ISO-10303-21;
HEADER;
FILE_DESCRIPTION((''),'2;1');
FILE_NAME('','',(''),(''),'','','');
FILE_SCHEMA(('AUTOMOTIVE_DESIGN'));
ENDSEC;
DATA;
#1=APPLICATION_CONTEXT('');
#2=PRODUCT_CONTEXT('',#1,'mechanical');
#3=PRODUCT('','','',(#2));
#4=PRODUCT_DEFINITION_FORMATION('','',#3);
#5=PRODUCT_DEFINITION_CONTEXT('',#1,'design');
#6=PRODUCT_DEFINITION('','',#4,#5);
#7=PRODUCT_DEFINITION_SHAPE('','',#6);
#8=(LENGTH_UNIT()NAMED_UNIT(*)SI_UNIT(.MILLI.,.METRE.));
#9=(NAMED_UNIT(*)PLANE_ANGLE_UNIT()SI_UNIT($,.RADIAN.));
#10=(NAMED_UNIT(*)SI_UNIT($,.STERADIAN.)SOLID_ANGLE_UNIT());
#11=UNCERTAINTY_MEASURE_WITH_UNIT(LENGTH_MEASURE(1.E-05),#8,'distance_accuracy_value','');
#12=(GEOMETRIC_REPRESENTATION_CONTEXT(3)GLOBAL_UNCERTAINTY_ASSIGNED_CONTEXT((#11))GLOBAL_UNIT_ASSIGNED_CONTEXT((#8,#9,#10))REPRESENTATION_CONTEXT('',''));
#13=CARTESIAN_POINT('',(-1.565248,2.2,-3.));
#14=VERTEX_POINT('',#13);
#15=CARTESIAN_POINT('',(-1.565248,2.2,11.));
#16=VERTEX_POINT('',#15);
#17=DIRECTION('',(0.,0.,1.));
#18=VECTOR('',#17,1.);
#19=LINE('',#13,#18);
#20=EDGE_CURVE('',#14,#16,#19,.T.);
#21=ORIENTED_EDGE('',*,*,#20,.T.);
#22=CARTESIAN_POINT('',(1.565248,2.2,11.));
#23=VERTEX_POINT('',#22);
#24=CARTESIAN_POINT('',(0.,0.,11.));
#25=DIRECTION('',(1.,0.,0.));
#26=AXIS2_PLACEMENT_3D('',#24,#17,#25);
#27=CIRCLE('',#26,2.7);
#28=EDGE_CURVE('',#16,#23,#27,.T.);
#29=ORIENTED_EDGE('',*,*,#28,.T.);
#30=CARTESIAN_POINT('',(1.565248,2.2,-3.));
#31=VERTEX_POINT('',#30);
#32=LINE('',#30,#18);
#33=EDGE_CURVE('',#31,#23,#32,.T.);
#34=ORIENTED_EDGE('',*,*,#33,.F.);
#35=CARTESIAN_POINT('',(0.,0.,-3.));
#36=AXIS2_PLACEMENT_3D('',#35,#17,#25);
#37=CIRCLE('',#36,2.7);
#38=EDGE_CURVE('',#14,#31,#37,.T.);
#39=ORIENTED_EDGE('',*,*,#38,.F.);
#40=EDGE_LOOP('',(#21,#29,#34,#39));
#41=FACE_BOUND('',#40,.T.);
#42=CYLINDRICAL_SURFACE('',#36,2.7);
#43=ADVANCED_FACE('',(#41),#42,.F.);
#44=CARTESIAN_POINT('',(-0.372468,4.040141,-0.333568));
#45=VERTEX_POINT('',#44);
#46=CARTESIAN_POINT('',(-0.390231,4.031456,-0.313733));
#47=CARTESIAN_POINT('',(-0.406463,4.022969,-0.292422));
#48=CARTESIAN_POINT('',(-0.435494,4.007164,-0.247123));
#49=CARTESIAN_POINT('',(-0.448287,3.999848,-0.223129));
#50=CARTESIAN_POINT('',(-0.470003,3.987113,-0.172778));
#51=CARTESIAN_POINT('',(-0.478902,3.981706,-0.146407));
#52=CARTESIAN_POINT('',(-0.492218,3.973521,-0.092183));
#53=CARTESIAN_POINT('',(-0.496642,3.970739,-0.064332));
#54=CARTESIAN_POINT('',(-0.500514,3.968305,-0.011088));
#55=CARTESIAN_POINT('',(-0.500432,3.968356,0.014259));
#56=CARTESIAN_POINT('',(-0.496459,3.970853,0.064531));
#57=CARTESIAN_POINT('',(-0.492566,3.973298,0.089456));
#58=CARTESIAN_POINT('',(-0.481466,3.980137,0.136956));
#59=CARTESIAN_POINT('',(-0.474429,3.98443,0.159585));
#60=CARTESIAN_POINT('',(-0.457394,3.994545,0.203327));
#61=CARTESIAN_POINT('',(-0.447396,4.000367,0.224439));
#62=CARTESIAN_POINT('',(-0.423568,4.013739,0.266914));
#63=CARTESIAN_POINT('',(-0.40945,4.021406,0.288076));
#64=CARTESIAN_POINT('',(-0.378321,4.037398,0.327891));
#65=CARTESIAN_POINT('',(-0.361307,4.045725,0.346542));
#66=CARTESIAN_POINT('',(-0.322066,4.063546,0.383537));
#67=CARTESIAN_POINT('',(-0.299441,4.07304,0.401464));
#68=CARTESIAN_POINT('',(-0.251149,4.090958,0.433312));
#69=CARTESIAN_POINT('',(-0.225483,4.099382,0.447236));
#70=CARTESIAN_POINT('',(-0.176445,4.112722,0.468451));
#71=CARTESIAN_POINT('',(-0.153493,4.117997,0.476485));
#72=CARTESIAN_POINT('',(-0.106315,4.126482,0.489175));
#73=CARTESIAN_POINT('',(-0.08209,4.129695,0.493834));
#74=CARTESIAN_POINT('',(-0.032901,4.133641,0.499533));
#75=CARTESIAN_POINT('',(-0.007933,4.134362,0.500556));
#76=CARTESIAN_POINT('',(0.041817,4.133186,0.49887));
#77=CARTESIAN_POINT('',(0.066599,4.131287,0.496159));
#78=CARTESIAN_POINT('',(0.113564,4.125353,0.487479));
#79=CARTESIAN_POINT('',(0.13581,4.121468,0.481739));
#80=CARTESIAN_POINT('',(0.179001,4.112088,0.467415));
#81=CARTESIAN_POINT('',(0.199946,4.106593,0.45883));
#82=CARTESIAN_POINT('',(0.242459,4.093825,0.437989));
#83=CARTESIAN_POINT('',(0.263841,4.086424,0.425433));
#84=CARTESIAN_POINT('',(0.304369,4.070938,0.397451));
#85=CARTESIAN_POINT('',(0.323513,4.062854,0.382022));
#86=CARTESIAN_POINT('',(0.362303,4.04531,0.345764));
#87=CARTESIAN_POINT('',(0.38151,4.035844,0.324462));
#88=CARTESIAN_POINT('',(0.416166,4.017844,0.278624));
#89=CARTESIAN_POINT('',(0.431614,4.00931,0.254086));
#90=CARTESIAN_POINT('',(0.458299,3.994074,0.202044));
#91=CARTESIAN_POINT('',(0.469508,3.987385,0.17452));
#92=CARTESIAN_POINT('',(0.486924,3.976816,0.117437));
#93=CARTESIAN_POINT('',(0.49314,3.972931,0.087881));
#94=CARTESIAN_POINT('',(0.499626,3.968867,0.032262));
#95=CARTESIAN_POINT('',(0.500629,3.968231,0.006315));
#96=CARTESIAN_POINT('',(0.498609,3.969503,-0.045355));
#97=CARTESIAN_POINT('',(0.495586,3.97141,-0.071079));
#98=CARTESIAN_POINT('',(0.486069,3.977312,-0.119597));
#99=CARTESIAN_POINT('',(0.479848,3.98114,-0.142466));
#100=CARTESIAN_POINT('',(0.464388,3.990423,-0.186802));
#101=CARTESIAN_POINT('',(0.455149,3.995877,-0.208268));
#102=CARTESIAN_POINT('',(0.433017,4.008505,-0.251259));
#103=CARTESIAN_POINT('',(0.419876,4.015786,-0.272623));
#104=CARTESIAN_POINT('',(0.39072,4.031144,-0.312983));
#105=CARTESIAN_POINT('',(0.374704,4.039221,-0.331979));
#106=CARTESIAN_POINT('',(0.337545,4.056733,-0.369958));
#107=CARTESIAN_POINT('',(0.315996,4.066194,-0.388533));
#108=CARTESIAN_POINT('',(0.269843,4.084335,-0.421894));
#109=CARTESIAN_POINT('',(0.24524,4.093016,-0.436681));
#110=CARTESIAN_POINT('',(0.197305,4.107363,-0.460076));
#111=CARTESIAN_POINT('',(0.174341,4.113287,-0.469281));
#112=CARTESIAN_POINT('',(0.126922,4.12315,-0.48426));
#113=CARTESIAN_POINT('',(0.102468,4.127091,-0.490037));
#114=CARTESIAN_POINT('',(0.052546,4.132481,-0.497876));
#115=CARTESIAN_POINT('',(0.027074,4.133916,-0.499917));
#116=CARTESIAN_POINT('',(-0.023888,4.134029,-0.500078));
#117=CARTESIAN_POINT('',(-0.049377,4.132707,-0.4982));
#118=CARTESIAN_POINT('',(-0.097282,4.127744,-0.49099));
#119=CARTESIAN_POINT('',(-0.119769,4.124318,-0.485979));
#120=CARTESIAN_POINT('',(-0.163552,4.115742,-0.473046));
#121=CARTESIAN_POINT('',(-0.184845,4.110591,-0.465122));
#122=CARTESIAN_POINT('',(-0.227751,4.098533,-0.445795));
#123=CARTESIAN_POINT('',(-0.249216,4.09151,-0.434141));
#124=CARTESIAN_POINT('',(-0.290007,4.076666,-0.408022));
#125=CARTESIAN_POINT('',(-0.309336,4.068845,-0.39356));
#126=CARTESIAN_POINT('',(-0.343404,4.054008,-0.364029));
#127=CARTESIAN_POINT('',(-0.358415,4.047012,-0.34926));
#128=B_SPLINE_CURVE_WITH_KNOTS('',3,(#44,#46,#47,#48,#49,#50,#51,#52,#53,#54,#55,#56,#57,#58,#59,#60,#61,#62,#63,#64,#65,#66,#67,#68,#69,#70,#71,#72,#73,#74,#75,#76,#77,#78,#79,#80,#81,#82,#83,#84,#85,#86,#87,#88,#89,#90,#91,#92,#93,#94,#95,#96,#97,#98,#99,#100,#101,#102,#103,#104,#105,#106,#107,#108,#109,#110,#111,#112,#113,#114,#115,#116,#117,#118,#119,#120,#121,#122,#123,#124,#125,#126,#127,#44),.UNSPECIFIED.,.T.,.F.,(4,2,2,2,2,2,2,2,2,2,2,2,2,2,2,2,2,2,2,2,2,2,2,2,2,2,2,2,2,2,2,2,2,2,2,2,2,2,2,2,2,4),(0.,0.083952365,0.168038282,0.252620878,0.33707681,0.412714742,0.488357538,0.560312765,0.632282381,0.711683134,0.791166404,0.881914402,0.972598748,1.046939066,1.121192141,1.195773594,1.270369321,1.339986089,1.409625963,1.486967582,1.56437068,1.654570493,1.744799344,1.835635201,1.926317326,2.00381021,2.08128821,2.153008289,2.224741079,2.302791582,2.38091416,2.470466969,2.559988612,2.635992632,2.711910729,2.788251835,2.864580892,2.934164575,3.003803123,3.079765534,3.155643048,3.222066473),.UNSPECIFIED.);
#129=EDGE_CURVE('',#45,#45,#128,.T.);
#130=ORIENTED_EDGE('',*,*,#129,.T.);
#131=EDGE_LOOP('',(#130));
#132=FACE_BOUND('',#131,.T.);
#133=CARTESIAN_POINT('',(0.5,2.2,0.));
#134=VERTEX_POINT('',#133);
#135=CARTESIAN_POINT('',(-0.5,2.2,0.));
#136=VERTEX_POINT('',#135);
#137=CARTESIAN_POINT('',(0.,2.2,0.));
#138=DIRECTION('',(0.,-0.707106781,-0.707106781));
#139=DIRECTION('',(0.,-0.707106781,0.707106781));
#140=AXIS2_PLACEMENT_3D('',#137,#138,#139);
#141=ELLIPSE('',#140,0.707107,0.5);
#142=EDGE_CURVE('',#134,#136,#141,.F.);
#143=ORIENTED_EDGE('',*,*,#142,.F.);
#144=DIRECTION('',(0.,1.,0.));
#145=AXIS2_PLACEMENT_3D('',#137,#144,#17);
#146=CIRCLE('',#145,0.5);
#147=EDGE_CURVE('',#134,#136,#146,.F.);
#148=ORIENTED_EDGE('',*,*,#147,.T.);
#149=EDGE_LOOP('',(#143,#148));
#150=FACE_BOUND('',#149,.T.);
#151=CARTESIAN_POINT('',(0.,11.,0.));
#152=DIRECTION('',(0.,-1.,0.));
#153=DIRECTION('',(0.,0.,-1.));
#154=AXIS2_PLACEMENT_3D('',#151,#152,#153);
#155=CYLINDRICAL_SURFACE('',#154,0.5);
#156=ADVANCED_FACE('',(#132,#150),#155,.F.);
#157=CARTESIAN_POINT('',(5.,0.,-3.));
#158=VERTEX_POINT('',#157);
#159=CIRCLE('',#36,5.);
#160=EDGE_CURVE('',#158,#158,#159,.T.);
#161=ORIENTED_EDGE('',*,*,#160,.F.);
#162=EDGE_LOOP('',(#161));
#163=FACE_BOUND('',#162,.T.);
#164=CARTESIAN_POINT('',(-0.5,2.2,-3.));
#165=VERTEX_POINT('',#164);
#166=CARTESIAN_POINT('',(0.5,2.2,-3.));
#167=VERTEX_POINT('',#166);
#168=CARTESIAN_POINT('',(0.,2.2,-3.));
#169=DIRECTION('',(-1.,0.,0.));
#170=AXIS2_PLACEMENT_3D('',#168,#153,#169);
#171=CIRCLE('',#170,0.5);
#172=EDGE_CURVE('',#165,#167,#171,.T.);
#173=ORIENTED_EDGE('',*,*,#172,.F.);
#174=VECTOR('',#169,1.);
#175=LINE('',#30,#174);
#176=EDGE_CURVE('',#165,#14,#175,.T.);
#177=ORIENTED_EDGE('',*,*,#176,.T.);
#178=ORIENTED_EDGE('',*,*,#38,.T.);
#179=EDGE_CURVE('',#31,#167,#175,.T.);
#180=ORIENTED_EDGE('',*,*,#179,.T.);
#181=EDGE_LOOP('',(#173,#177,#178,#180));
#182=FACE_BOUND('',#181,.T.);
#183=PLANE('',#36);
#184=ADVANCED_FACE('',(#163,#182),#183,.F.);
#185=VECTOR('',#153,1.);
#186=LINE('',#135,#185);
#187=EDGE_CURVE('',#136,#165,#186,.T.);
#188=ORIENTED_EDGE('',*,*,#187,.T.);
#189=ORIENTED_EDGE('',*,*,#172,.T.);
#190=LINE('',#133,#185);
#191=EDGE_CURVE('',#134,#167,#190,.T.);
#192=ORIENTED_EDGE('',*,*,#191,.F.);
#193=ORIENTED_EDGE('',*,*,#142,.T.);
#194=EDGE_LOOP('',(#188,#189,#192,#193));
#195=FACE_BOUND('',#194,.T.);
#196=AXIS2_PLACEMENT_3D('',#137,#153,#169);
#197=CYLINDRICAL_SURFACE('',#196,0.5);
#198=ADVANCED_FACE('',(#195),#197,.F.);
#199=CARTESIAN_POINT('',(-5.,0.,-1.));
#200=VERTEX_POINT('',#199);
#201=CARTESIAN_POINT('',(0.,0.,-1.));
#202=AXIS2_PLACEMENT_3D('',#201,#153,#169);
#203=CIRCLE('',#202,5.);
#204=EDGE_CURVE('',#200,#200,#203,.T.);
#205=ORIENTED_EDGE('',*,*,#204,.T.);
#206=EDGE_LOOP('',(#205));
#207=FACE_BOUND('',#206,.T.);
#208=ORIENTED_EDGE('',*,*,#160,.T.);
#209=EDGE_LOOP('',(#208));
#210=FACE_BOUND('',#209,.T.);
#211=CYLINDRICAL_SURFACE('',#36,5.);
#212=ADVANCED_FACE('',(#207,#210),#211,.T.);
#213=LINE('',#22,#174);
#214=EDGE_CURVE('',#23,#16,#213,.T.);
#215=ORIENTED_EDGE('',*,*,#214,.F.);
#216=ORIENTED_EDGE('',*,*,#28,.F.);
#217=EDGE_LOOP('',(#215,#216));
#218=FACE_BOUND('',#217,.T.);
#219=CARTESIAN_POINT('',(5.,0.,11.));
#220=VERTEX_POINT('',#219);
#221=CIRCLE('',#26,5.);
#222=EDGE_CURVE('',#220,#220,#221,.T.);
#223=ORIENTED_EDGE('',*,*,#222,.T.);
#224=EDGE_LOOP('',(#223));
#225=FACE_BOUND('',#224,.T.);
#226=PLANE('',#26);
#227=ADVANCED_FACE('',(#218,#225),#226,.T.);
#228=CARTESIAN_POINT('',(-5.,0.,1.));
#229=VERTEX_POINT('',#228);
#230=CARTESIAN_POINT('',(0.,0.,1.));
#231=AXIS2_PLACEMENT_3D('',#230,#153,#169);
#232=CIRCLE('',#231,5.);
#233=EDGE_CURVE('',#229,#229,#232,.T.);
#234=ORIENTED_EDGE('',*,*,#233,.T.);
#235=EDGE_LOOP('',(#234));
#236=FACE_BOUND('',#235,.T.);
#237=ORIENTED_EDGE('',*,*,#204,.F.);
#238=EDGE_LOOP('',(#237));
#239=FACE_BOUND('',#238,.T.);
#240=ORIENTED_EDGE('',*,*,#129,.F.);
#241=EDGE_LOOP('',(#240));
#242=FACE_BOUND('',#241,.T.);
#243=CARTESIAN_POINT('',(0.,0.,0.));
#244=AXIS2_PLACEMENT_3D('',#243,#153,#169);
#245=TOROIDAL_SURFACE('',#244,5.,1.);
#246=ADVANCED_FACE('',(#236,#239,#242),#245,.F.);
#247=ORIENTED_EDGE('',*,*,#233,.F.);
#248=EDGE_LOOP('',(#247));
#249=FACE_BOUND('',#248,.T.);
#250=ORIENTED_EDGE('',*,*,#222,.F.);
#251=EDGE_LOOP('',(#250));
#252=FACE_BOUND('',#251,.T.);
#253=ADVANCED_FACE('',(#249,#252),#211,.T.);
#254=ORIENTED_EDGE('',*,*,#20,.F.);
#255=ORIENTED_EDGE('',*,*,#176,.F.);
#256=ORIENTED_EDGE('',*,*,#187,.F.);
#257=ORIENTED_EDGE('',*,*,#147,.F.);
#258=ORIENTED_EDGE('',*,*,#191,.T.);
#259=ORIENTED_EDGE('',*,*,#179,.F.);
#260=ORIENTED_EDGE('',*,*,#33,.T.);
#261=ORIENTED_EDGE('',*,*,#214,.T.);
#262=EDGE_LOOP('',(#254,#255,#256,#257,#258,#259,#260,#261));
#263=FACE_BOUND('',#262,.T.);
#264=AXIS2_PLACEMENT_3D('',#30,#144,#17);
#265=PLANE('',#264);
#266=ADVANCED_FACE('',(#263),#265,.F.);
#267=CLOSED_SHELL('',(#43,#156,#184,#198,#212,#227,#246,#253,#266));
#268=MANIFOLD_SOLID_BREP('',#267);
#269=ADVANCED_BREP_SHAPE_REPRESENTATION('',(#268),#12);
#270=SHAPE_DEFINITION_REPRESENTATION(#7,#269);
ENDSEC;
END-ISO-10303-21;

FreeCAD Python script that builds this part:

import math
import FreeCAD as App
import Part
import Sketcher

doc = App.newDocument("Part")
body = doc.addObject("PartDesign::Body", "Body")

# Sketch on XY plane
sketch1 = body.newObject("Sketcher::SketchObject", "Sketch")
sketch1.AttachmentSupport = (doc.getObject("XY_Plane"), [""])
sketch1.MapMode = "FlatFace"
sketch1.addGeometry([
    Part.Circle(App.Vector(0, 0, 0), App.Vector(0, 0, 1), 5),
    Part.LineSegment(App.Vector(-1.6, 2.2, 0), App.Vector(1.6, 2.2, 0)),
    Part.ArcOfCircle(Part.Circle(App.Vector(0, 0, 0), App.Vector(0, 0, 1), 2.7), math.radians(125), math.radians(415)),
], False)
sketch1.addConstraint([
    Sketcher.Constraint("Coincident", 1, 1, 2, 1),
    Sketcher.Constraint("Coincident", 2, 2, 1, 2),
    Sketcher.Constraint("Horizontal", 1),
    Sketcher.Constraint("Coincident", 0, 3, -1, 1),
    Sketcher.Constraint("Coincident", 2, 3, -1, 1),
    Sketcher.Constraint("Diameter", 0, 10.0),
    Sketcher.Constraint("Radius", 2, 2.7),
    Sketcher.Constraint("DistanceY", -1, 1, 1, 1, 2.2),
])
pad1 = body.newObject("PartDesign::Pad", "Pad")
pad1.Profile = sketch1
pad1.Type = "TwoLengths"
pad1.Length = 11
pad1.Length2 = 3

# Sketch on YZ plane
sketch2 = body.newObject("Sketcher::SketchObject", "Sketch001")
sketch2.AttachmentSupport = (doc.getObject("YZ_Plane"), [""])
sketch2.MapMode = "FlatFace"
sketch2.addGeometry([
    Part.LineSegment(App.Vector(5, -1, 0), App.Vector(5, 1, 0)),
    Part.ArcOfCircle(Part.Circle(App.Vector(5, 0, 0), App.Vector(0, 0, 1), 1), math.radians(90), math.radians(270)),
], False)
sketch2.addConstraint([
    Sketcher.Constraint("Coincident", 0, 1, 1, 2),
    Sketcher.Constraint("Coincident", 1, 1, 0, 2),
    Sketcher.Constraint("Vertical", 0),
    Sketcher.Constraint("PointOnObject", 1, 3, -1),
    Sketcher.Constraint("Vertical", 1, 3, 0, 1),
    Sketcher.Constraint("Radius", 1, 1.0),
    Sketcher.Constraint("DistanceX", -1, 1, 1, 3, 5.0),
])
groove = body.newObject("PartDesign::Groove", "Groove")
groove.Profile = sketch2
groove.ReferenceAxis = (sketch2, ["V_Axis"])
groove.Angle = 360

# Sketch on XZ plane
sketch3 = body.newObject("Sketcher::SketchObject", "Sketch002")
sketch3.AttachmentSupport = (doc.getObject("XZ_Plane"), [""])
sketch3.MapMode = "FlatFace"
sketch3.addGeometry(Part.Circle(App.Vector(0, 0, 0), App.Vector(0, 0, 1), 0.5), False)
sketch3.addConstraint([
    Sketcher.Constraint("Coincident", 0, 3, -1, 1),
    Sketcher.Constraint("Diameter", 0, 1.0),
])
pocket1 = body.newObject("PartDesign::Pocket", "Pocket")
pocket1.Profile = sketch3
pocket1.Length = 11

# Sketch on XY plane
sketch4 = body.newObject("Sketcher::SketchObject", "Sketch003")
sketch4.AttachmentSupport = (doc.getObject("XY_Plane"), [""])
sketch4.MapMode = "FlatFace"
sketch4.AttachmentOffset = App.Placement(App.Vector(0, 0, -3), App.Rotation())
sketch4.addGeometry([
    Part.LineSegment(App.Vector(0.5, 2.2, 0), App.Vector(-0.5, 2.2, 0)),
    Part.ArcOfCircle(Part.Circle(App.Vector(0, 2.2, 0), App.Vector(0, 0, 1), 0.5), math.radians(0), math.radians(180)),
], False)
sketch4.addConstraint([
    Sketcher.Constraint("Coincident", 0, 1, 1, 1),
    Sketcher.Constraint("Coincident", 1, 2, 0, 2),
    Sketcher.Constraint("Horizontal", 0),
    Sketcher.Constraint("PointOnObject", 1, 3, -2),
    Sketcher.Constraint("Horizontal", 1, 3, 0, 1),
    Sketcher.Constraint("Radius", 1, 0.5),
    Sketcher.Constraint("DistanceY", -1, 1, 1, 3, 2.2),
])
pocket2 = body.newObject("PartDesign::Pocket", "Pocket001")
pocket2.Profile = sketch4
pocket2.Length = 3
pocket2.Reversed = True

doc.recompute()
